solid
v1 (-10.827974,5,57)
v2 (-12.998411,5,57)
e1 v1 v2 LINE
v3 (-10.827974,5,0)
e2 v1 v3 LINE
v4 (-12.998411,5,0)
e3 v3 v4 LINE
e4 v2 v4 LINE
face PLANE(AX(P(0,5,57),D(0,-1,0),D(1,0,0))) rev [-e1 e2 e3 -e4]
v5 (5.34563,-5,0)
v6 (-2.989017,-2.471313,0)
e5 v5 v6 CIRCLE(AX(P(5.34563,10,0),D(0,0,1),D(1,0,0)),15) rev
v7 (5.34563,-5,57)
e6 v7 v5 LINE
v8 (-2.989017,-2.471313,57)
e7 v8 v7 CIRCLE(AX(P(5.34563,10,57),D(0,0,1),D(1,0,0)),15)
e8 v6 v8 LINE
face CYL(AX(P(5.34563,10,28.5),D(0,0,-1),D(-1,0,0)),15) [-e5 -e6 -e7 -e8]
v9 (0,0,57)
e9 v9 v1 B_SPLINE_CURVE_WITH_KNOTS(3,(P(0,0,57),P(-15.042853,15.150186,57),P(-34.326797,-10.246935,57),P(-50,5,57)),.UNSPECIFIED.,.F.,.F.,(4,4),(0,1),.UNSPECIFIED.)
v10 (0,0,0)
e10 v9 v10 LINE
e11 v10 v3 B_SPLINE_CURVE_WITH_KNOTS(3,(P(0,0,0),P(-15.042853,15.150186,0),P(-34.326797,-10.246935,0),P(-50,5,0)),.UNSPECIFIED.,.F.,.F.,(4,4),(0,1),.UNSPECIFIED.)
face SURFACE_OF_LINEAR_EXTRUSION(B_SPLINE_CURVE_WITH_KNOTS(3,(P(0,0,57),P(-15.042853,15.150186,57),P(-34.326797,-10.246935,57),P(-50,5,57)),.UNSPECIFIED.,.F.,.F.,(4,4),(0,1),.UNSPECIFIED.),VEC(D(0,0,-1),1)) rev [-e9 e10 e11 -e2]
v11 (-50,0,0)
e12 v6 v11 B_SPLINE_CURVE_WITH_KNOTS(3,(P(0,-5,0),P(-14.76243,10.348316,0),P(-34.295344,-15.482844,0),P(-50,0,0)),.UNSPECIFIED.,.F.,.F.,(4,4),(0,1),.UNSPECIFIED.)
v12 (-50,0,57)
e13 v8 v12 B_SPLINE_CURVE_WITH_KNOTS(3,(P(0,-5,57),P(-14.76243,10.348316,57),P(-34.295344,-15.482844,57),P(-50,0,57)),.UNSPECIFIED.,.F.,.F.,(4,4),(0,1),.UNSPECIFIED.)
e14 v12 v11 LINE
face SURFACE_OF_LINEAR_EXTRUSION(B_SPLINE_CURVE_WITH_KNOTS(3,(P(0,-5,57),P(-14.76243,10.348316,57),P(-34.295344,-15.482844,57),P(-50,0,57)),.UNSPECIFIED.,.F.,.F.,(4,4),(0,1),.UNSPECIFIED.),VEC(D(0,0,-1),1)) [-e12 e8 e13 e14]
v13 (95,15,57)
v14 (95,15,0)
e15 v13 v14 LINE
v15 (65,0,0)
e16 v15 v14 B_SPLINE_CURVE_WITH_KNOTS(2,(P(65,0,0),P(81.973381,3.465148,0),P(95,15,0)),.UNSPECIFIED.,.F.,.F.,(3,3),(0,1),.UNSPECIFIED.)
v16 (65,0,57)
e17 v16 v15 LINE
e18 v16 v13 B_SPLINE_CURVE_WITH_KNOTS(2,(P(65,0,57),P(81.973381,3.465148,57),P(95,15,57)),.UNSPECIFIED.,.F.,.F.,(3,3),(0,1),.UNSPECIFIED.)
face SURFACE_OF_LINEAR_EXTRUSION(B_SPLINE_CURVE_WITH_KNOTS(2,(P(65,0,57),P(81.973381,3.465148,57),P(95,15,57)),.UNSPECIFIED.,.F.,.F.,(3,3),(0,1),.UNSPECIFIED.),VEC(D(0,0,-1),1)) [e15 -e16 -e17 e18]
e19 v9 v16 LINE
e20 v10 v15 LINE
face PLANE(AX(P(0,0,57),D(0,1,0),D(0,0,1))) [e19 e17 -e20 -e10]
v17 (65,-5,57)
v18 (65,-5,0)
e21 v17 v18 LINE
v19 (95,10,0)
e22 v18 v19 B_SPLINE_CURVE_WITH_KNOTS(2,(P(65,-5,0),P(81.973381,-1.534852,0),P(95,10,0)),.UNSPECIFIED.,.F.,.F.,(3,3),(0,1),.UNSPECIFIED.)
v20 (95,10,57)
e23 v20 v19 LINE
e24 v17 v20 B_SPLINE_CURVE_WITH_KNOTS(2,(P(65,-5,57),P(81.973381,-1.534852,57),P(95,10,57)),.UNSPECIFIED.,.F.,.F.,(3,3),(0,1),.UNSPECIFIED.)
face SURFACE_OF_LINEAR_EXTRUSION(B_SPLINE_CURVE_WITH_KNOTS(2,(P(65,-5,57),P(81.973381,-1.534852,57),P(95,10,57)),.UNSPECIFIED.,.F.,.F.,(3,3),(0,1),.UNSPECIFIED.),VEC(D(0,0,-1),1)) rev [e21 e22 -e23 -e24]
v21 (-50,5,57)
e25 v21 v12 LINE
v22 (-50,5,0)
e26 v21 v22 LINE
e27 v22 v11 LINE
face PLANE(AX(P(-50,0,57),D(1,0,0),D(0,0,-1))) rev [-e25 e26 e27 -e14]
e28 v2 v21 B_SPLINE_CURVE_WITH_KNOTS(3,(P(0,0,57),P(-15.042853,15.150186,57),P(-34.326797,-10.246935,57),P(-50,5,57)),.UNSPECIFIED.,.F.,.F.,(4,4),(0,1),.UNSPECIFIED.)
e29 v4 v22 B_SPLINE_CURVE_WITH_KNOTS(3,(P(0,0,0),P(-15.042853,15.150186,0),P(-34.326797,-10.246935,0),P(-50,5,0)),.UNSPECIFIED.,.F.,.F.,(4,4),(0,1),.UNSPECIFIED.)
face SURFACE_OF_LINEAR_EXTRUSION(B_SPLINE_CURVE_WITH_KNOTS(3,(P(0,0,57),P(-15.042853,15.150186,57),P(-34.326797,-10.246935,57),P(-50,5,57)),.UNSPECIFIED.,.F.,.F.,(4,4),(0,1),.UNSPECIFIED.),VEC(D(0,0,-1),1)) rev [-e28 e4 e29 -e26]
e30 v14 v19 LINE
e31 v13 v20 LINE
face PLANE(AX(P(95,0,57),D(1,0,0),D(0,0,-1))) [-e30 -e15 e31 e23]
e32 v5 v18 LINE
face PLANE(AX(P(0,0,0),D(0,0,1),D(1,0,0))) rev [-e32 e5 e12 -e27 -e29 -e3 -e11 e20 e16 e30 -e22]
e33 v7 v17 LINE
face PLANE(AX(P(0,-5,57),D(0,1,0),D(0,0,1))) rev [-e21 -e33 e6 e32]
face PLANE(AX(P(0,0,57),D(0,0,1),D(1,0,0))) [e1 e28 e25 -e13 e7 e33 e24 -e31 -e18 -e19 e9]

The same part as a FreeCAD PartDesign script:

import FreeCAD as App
import Part
import Sketcher

V = App.Vector


def edges_at(feature, points):
    """Names of the edges that pass closest to the given points."""
    edges = feature.Shape.Edges
    near = lambda p: min(range(len(edges)), key=lambda i: edges[i].distToShape(Part.Vertex(*p))[0])
    return sorted({f"Edge{near(p) + 1}" for p in points})

doc = App.newDocument("Part")
body = doc.addObject("PartDesign::Body", "Body")

sketch1 = doc.addObject("Sketcher::SketchObject", "Sketch")
body.addObject(sketch1)
sketch1.AttachmentSupport = (doc.XY_Plane, [""])
sketch1.MapMode = "FlatFace"
sketch1.addGeometry(Part.BSplineCurve([V(0, 0, 0), V(-3.420787, 3.445195, 0), V(-7.06089, 4.793606, 0), V(-10.827974, 5, 0)], [4, 4], [0, 0.227402819], False, 3, [1, 1, 1, 1], False), False)
sketch1.addGeometry(Part.LineSegment(V(-10.827974, 5, 0), V(-12.998411, 5, 0)), False)
sketch1.addGeometry(Part.BSplineCurve([V(-12.998411, 5, 0), V(-25.222609, 4.37536, 0), V(-38.571253, -6.117916, 0), V(-50, 5, 0)], [4, 4], [0.270809768, 1], False, 3, [1, 1, 1, 1], False), False)
sketch1.addGeometry(Part.LineSegment(V(-50, 5, 0), V(-50, 0, 0)), False)
sketch1.addGeometry(Part.BSplineCurve([V(0, -5, 0), V(-14.76243, 10.348316, 0), V(-34.295344, -15.482844, 0), V(-50, 0, 0)], [4, 4], [0, 1], False, 3, [1, 1, 1, 1], False), False)
sketch1.addGeometry(Part.LineSegment(V(0, -5, 0), V(65, -5, 0)), False)
sketch1.addGeometry(Part.BSplineCurve([V(65, -5, 0), V(72.930836, -3.380904, 0), V(80, 0, 0)], [3, 3], [0, 0.467251417], False, 2, [1, 1, 1], False), False)
sketch1.addGeometry(Part.BSplineCurve([V(80, 0, 0), V(88.060087, 3.854824, 0), V(95, 10, 0)], [3, 3], [0.467251417, 1], False, 2, [1, 1, 1], False), False)
sketch1.addGeometry(Part.LineSegment(V(95, 10, 0), V(95, 15, 0)), False)
sketch1.addGeometry(Part.BSplineCurve([V(65, 0, 0), V(81.973381, 3.465148, 0), V(95, 15, 0)], [3, 3], [0, 1], False, 2, [1, 1, 1], False), False)
sketch1.addGeometry(Part.LineSegment(V(65, 0, 0), V(0, 0, 0)), False)
sketch1.addConstraint(Sketcher.Constraint("Block", 0))
sketch1.addConstraint(Sketcher.Constraint("Block", 2))
sketch1.addConstraint(Sketcher.Constraint("Block", 4))
sketch1.addConstraint(Sketcher.Constraint("Block", 6))
sketch1.addConstraint(Sketcher.Constraint("Block", 7))
sketch1.addConstraint(Sketcher.Constraint("Block", 9))
sketch1.addConstraint(Sketcher.Constraint("Coincident", 0, 2, 1, 1))
sketch1.addConstraint(Sketcher.Constraint("Coincident", 1, 2, 2, 1))
sketch1.addConstraint(Sketcher.Constraint("Coincident", 2, 2, 3, 1))
sketch1.addConstraint(Sketcher.Constraint("Coincident", 3, 2, 4, 2))
sketch1.addConstraint(Sketcher.Constraint("Coincident", 4, 1, 5, 1))
sketch1.addConstraint(Sketcher.Constraint("Coincident", 5, 2, 6, 1))
sketch1.addConstraint(Sketcher.Constraint("Coincident", 7, 2, 8, 1))
sketch1.addConstraint(Sketcher.Constraint("Coincident", 8, 2, 9, 2))
sketch1.addConstraint(Sketcher.Constraint("Coincident", 9, 1, 10, 1))
sketch1.addConstraint(Sketcher.Constraint("Coincident", 10, 2, 0, 1))
pad1 = doc.addObject("PartDesign::Pad", "Pad")
body.addObject(pad1)
pad1.Profile = sketch1
pad1.Length = 57
doc.recompute()

fillet = doc.addObject("PartDesign::Fillet", "Fillet")
body.addObject(fillet)
fillet.Base = (pad1, edges_at(pad1, [(0, -5, 28.5)]))
fillet.Radius = 15

doc.recompute()
